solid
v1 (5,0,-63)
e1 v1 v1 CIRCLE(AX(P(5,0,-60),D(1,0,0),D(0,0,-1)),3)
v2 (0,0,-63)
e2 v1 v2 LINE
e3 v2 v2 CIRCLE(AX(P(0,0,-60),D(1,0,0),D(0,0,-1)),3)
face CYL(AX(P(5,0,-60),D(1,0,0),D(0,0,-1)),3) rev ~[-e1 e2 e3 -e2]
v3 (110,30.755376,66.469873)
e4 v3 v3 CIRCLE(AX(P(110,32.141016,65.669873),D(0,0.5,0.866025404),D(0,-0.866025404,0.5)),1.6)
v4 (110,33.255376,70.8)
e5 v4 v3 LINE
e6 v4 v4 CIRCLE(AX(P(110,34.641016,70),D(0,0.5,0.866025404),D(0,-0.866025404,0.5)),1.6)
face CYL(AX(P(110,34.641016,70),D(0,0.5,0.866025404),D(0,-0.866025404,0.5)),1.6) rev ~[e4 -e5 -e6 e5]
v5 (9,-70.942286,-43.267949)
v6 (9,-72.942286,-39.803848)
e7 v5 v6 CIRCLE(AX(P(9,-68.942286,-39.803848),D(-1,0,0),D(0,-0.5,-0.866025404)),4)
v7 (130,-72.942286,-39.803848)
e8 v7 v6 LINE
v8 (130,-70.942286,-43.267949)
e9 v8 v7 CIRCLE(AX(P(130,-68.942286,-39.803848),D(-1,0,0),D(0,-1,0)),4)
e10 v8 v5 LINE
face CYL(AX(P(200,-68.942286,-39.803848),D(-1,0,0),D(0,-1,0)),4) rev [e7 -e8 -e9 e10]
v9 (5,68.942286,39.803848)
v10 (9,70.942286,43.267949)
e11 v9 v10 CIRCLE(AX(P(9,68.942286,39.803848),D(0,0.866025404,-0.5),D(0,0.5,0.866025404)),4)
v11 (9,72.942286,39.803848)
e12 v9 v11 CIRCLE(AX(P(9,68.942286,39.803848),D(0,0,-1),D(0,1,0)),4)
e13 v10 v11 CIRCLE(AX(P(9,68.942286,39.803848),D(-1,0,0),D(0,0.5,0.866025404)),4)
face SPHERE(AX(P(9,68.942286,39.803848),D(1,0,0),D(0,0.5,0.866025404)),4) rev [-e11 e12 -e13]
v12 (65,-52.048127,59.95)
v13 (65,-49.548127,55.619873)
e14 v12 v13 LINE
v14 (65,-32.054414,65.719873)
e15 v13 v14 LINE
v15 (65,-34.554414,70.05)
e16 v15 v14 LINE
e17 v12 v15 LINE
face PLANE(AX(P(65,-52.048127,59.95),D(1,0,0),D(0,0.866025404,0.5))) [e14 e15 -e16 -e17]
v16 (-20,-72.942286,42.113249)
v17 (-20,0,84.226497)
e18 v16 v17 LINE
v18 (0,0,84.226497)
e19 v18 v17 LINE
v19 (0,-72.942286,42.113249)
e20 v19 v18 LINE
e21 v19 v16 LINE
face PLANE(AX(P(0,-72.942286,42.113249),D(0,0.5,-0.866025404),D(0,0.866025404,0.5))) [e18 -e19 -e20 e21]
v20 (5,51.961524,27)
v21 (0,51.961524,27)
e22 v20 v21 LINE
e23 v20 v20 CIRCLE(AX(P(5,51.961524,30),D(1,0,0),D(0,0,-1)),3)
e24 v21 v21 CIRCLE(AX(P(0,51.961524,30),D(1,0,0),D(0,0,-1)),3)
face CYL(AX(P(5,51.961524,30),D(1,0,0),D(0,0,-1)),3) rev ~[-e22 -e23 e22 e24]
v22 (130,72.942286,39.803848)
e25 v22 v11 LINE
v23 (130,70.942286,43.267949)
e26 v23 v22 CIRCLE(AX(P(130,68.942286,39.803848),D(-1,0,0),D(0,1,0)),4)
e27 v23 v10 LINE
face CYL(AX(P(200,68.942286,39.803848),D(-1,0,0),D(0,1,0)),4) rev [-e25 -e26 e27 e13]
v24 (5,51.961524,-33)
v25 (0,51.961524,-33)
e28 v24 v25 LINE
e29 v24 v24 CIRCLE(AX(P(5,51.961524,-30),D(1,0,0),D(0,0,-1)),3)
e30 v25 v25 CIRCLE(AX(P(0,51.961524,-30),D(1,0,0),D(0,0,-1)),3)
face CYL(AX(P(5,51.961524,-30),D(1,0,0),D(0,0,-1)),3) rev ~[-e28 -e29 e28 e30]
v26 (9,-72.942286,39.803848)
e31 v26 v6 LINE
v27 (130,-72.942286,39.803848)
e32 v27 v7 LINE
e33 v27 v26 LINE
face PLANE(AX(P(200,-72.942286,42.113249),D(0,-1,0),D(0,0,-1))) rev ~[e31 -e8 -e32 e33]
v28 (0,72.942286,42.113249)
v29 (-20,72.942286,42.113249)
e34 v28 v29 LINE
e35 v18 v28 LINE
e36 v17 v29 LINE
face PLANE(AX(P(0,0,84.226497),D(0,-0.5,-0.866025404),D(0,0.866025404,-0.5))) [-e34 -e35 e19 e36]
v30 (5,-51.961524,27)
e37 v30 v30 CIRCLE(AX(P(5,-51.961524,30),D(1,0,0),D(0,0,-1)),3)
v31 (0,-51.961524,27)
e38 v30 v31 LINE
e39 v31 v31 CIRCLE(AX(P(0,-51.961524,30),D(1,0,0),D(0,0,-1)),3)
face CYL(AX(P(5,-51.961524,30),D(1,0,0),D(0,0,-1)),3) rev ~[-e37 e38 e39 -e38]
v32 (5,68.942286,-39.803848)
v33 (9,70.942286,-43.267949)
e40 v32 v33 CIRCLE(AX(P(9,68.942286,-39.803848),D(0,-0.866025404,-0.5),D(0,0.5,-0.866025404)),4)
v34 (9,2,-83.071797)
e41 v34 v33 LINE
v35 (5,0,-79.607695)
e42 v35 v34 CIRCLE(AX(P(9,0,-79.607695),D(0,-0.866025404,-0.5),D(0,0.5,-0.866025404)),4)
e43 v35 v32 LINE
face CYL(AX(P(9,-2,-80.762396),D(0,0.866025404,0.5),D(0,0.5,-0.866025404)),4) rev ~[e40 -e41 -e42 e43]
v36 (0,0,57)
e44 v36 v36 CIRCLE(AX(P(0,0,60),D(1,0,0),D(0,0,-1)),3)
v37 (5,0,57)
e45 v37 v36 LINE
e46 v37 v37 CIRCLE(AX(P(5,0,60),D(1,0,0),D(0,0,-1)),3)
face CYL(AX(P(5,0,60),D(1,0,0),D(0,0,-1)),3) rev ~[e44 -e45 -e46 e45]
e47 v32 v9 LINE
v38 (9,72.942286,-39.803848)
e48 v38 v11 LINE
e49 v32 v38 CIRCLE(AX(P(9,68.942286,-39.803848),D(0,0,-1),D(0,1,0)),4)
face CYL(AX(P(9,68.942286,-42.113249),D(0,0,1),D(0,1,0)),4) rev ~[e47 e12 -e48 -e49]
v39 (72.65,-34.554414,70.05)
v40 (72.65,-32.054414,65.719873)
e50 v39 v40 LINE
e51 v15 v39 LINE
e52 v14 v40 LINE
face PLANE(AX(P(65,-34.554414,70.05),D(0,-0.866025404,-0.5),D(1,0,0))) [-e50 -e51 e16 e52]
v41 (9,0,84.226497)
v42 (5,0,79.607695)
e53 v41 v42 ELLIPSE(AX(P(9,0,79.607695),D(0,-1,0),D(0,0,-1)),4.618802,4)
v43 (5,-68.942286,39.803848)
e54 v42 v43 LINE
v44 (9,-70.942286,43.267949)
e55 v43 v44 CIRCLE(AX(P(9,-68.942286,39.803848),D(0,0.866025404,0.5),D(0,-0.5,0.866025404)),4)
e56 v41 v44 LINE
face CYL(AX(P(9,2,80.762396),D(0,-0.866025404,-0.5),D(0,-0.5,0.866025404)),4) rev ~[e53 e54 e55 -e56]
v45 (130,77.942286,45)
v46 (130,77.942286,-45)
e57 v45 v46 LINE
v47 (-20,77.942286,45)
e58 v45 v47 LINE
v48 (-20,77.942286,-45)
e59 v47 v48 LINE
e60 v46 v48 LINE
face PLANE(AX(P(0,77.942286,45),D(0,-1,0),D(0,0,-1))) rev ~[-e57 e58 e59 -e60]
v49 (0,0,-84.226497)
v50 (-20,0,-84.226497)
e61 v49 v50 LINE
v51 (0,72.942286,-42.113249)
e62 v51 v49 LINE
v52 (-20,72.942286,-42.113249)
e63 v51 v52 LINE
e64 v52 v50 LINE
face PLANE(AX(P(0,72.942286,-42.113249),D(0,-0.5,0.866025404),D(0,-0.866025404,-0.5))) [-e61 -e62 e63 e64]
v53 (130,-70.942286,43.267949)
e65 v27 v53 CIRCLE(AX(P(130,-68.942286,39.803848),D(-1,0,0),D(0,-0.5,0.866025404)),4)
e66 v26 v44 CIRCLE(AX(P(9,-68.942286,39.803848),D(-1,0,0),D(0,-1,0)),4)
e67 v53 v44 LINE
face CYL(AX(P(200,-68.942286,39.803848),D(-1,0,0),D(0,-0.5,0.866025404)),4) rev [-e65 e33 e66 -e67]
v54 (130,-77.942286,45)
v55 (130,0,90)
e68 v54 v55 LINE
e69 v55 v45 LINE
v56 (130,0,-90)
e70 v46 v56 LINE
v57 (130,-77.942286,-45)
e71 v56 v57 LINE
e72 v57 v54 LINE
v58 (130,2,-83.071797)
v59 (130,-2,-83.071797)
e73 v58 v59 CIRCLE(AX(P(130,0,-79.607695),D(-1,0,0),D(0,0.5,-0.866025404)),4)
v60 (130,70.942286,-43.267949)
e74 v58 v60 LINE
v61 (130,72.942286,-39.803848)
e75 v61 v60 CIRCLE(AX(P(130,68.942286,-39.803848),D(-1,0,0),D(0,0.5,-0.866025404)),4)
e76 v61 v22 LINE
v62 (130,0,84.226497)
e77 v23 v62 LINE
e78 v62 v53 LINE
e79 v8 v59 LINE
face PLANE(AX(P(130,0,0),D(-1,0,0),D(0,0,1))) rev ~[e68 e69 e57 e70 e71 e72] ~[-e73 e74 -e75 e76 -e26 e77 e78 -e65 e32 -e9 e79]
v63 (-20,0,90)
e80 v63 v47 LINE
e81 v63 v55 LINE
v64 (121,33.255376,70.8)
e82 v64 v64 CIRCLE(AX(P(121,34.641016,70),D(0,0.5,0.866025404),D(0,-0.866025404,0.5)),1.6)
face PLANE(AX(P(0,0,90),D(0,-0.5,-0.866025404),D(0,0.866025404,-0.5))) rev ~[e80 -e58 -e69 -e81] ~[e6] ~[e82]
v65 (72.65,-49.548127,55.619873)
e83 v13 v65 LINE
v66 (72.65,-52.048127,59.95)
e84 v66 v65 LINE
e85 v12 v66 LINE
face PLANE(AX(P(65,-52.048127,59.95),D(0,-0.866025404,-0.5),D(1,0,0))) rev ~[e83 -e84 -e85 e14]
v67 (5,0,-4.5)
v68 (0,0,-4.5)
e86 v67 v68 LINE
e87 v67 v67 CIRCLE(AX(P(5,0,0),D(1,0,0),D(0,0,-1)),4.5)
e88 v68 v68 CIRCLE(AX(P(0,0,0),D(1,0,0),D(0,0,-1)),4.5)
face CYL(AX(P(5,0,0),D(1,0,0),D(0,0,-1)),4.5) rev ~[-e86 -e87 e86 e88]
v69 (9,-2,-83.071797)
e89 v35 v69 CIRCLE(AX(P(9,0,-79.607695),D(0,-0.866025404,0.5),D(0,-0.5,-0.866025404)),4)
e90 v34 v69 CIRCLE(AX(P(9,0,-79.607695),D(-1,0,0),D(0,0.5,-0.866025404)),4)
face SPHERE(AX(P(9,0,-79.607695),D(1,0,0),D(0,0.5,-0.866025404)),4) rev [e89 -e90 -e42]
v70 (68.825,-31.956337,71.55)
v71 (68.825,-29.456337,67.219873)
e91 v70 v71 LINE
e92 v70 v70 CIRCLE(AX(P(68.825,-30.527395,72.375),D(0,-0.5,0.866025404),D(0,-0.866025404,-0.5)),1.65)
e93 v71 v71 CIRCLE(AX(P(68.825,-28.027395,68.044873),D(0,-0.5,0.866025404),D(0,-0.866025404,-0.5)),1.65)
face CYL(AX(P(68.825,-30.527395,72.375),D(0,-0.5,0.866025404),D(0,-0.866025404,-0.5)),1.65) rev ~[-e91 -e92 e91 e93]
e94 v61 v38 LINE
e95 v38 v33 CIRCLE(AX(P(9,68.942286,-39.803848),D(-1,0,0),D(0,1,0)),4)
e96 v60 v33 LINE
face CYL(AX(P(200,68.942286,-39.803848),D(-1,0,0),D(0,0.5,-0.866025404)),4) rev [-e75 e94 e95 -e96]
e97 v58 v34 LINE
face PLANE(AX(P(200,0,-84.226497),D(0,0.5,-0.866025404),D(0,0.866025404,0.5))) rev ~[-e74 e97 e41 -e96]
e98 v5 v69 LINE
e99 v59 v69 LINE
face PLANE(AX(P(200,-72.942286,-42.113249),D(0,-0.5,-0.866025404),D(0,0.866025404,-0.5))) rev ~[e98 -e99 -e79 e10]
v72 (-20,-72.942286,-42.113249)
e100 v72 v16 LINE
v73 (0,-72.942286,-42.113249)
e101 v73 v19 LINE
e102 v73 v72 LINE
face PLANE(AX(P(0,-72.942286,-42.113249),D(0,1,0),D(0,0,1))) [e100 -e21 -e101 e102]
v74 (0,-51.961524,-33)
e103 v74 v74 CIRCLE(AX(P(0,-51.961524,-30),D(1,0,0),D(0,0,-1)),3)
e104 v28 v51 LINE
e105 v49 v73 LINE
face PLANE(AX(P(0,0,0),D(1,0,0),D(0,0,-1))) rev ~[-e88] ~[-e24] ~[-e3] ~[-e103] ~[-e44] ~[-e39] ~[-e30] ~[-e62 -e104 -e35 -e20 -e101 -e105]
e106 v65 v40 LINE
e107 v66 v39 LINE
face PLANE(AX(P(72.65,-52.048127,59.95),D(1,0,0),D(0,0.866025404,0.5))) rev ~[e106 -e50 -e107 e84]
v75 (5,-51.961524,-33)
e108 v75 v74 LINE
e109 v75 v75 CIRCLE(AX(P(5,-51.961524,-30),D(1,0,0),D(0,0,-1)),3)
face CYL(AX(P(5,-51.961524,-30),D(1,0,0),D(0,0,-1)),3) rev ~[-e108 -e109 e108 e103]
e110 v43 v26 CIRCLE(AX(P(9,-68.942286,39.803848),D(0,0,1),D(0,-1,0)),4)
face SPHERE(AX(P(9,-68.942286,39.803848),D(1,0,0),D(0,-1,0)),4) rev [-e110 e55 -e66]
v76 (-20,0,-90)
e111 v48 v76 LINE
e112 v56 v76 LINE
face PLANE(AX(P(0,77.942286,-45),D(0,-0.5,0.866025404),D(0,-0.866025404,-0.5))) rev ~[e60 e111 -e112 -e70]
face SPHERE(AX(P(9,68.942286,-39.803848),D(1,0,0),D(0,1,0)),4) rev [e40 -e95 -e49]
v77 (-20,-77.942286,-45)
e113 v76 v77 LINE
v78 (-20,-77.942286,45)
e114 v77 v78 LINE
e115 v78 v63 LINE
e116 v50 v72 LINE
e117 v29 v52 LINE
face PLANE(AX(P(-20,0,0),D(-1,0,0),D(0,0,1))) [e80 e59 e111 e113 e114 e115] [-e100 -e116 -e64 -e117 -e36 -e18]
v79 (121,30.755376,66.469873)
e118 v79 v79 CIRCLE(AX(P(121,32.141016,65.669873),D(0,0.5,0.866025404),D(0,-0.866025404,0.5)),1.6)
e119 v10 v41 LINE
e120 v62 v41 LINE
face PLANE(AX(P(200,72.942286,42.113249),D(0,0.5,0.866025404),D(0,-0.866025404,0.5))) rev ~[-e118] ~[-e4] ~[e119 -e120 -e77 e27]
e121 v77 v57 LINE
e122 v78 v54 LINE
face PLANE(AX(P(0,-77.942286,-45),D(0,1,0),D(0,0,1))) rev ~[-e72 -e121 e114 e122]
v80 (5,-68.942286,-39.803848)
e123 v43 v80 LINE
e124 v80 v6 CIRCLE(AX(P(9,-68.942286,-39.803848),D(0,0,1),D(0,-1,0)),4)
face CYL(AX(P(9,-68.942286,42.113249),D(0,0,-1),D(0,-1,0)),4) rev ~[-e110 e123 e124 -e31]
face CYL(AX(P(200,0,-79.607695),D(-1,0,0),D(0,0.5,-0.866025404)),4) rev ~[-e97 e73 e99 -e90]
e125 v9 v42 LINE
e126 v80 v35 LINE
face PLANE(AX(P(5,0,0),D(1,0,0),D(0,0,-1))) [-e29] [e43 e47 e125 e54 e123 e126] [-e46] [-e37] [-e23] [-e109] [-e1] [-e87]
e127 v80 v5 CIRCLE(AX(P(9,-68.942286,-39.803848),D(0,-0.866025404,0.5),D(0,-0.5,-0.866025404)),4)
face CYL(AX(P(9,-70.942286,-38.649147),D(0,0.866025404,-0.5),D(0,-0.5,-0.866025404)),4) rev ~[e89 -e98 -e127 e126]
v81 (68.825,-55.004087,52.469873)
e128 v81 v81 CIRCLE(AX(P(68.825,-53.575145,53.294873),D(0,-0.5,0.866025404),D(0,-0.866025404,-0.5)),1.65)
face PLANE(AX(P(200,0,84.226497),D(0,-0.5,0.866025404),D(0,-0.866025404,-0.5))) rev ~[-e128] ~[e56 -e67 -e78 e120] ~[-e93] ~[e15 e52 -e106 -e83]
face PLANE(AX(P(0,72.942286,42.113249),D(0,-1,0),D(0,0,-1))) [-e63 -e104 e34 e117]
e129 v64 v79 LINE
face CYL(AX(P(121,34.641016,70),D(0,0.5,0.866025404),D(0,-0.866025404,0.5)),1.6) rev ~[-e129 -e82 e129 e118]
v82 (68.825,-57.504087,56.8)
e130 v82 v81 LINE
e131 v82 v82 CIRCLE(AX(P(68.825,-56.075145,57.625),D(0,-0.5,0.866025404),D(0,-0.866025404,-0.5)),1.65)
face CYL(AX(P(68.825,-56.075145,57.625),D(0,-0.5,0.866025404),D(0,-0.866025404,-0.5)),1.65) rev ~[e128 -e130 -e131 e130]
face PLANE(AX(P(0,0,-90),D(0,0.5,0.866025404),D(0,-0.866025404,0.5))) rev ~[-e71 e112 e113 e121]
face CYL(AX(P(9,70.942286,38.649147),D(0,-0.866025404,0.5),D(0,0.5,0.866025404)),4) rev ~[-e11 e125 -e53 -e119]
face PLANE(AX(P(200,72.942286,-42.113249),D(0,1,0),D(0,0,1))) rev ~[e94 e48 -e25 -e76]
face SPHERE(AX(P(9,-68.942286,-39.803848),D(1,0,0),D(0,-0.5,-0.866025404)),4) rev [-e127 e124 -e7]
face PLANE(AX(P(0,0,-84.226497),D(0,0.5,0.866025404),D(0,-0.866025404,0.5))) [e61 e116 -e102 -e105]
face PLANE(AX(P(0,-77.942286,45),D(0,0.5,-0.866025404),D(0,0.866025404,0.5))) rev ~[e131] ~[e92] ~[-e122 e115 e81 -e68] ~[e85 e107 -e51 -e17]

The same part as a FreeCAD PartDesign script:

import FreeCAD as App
import Part
import Sketcher

V = App.Vector
Q = App.Units.Quantity


def edges_at(feature, points):
    """Names of the edges that pass closest to the given points."""
    edges = feature.Shape.Edges
    near = lambda p: min(range(len(edges)), key=lambda i: edges[i].distToShape(Part.Vertex(*p))[0])
    return sorted({f"Edge{near(p) + 1}" for p in points})


def add_polygon(sketch, points):
    """Adds a closed chain of lines whose ends are joined by coincident constraints."""
    first, n = sketch.GeometryCount, len(points)
    for a, b in zip(points, points[1:] + points[:1]):
        sketch.addGeometry(Part.LineSegment(App.Vector(*a, 0), App.Vector(*b, 0)), False)
    for i in range(n):
        sketch.addConstraint(Sketcher.Constraint("Coincident", first + i, 2, first + (i + 1) % n, 1))

doc = App.newDocument("Part")
body = doc.addObject("PartDesign::Body", "Body")

# Sketch on YZ plane
sketch1 = body.newObject("Sketcher::SketchObject", "Sketch")
sketch1.AttachmentSupport = (doc.getObject("YZ_Plane"), [""])
sketch1.MapMode = "FlatFace"
add_polygon(sketch1, [(0, -90), (77.942286, -45), (77.942286, 45), (0, 90), (-77.942286, 45), (-77.942286, -45)])  # lines 0-5
sketch1.addConstraint([
    Sketcher.Constraint("Vertical", 1),
    Sketcher.Constraint("Vertical", 4),
    Sketcher.Constraint("Symmetric", 0, 2, 3, 2, -1, 1),
    Sketcher.Constraint("Symmetric", 2, 2, 5, 2, -1, 1),
    Sketcher.Constraint("PointOnObject", 2, 2, -2),
    Sketcher.Constraint("Parallel", 2, 5),
    Sketcher.Constraint("Horizontal", 1, 2, 3, 2),
    Sketcher.Constraint("DistanceY", 1, 1, 1, 2, 90.0),
    Sketcher.Constraint("Angle", 0, Q("30 deg")),
    Sketcher.Constraint("Distance", 0, 90.0),
])
pad1 = body.newObject("PartDesign::Pad", "Pad")
pad1.Profile = sketch1
pad1.Length = 200

# Sketch on YZ plane
sketch2 = body.newObject("Sketcher::SketchObject", "Sketch001")
sketch2.AttachmentSupport = (doc.getObject("YZ_Plane"), [""])
sketch2.MapMode = "FlatFace"
sketch2.AttachmentOffset = App.Placement(V(0, 0, 200), App.Rotation())
add_polygon(sketch2, [(0, -84.226497), (72.942286, -42.113249), (72.942286, 42.113249), (0, 84.226497), (-72.942286, 42.113249), (-72.942286, -42.113249)])  # lines 0-5
sketch2.addConstraint([
    Sketcher.Constraint("Vertical", 1),
    Sketcher.Constraint("Vertical", 4),
    Sketcher.Constraint("Symmetric", 0, 2, 3, 2, -1, 1),
    Sketcher.Constraint("Symmetric", 2, 2, 5, 2, -1, 1),
    Sketcher.Constraint("PointOnObject", 2, 2, -2),
    Sketcher.Constraint("Parallel", 2, 5),
    Sketcher.Constraint("Horizontal", 1, 2, 3, 2),
    Sketcher.Constraint("Angle", 0, Q("30 deg")),
    Sketcher.Constraint("DistanceY", 1, 1, 1, 2, 84.226497),
    Sketcher.Constraint("DistanceY", 1, 2, 2, 2, 42.113249),
])
pocket1 = body.newObject("PartDesign::Pocket", "Pocket")
pocket1.Profile = sketch2
pocket1.Length = 195

# Sketch on an angled plane
sketch3 = body.newObject("Sketcher::SketchObject", "Sketch002")
sketch3.Placement = App.Placement(V(0, -38.971143, 67.5), App.Rotation(V(1, 0, 0), V(0, 0.866025404, 0.5), V(0, -0.5, 0.866025404), "ZXY"))
sketch3.addGeometry(Part.Circle(V(68.825, 9.75, 0), V(0, 0, 1), 1.65), False)  # 0
sketch3.addGeometry(Part.Circle(V(68.825, -19.75, 0), V(0, 0, 1), 1.65), False)  # 1
add_polygon(sketch3, [(65, 5.1), (65, -15.1), (72.65, -15.1), (72.65, 5.1)])  # lines 2-5
sketch3.addConstraint([
    Sketcher.Constraint("Vertical", 2),
    Sketcher.Constraint("Horizontal", 3),
    Sketcher.Constraint("Vertical", 4),
    Sketcher.Constraint("Horizontal", 5),
    Sketcher.Constraint("Equal", 0, 1),
    Sketcher.Constraint("Vertical", 0, 3, 1, 3),
    Sketcher.Constraint("Diameter", 0, 3.3),
    Sketcher.Constraint("DistanceY", 2, 2, 2, 1, 20.2),
    Sketcher.Constraint("DistanceX", -1, 1, 2, 2, 65.0),
    Sketcher.Constraint("DistanceX", 3, 1, 3, 2, 7.65),
    Sketcher.Constraint("DistanceY", 2, 2, -1, 1, 15.1),
    Sketcher.Constraint("DistanceY", 1, 3, 0, 3, 29.5),
    Sketcher.Constraint("DistanceY", -1, 1, 0, 3, 9.75),
    Sketcher.Constraint("DistanceX", -1, 1, 0, 3, 68.825),
])
pocket2 = body.newObject("PartDesign::Pocket", "Pocket001")
pocket2.Profile = sketch3
pocket2.Length = 70

# Sketch on YZ plane
sketch4 = body.newObject("Sketcher::SketchObject", "Sketch003")
sketch4.AttachmentSupport = (doc.getObject("YZ_Plane"), [""])
sketch4.MapMode = "FlatFace"
sketch4.AttachmentOffset = App.Placement(V(0, 0, 5), App.Rotation())
sketch4.addGeometry([
    Part.Circle(V(0, 0, 0), V(0, 0, 1), 4.5),  # 0
    Part.Circle(V(0, -60, 0), V(0, 0, 1), 3),  # 1
    Part.Circle(V(51.961524, -30, 0), V(0, 0, 1), 3),  # 2
    Part.Circle(V(51.961524, 30, 0), V(0, 0, 1), 3),  # 3
    Part.Circle(V(0, 60, 0), V(0, 0, 1), 3),  # 4
    Part.Circle(V(-51.961524, 30, 0), V(0, 0, 1), 3),  # 5
    Part.Circle(V(-51.961524, -30, 0), V(0, 0, 1), 3),  # 6
], False)
sketch4.addConstraint([
    Sketcher.Constraint("Coincident", 0, 3, -1, 1),
    Sketcher.Constraint("Equal", 1, 2),
    Sketcher.Constraint("Equal", 2, 3),
    Sketcher.Constraint("Equal", 3, 4),
    Sketcher.Constraint("Equal", 4, 5),
    Sketcher.Constraint("Equal", 5, 6),
    Sketcher.Constraint("Symmetric", 1, 3, 4, 3, -1, 1),
    Sketcher.Constraint("Symmetric", 2, 3, 5, 3, -1, 1),
    Sketcher.Constraint("Symmetric", 3, 3, 6, 3, -1, 1),
    Sketcher.Constraint("Symmetric", 3, 3, 5, 3, -2),
    Sketcher.Constraint("PointOnObject", 1, 3, -2),
    Sketcher.Constraint("Diameter", 0, 9.0),
    Sketcher.Constraint("Diameter", 1, 6.0),
    Sketcher.Constraint("DistanceY", 1, 3, -1, 1, 60.0),
    Sketcher.Constraint("DistanceY", 2, 3, -1, 1, 30.0),
    Sketcher.Constraint("DistanceX", 5, 3, 3, 3, 103.923048),
])
pocket3 = body.newObject("PartDesign::Pocket", "Pocket002")
pocket3.Profile = sketch4
pocket3.Length = 70
doc.recompute()

fillet = body.newObject("PartDesign::Fillet", "Fillet")
fillet.Base = (pocket3, edges_at(pocket3, [
    (5, -36.471, -63.17),
    (102.5, 0, -84.226),
    (5, -72.942, 0),
    (102.5, -72.942, -42.113),
    (5, -36.471, 63.17),
    (102.5, -72.942, 42.113),
    (5, 36.471, 63.17),
    (5, 72.942, 0),
    (102.5, 72.942, 42.113),
    (5, 36.471, -63.17),
    (102.5, 72.942, -42.113),
]))
fillet.Radius = 4

# Sketch on YZ plane
sketch5 = body.newObject("Sketcher::SketchObject", "Sketch004")
sketch5.AttachmentSupport = (doc.getObject("YZ_Plane"), [""])
sketch5.MapMode = "FlatFace"
sketch5.AttachmentOffset = App.Placement(V(0, 0, 200), App.Rotation())
add_polygon(sketch5, [(0, -90), (77.942286, -45), (77.942286, 45), (0, 90), (-77.942286, 45), (-77.942286, -45)])  # lines 0-5
sketch5.addConstraint([
    Sketcher.Constraint("Vertical", 1),
    Sketcher.Constraint("Vertical", 4),
    Sketcher.Constraint("Symmetric", 0, 2, 3, 2, -1, 1),
    Sketcher.Constraint("Symmetric", 2, 2, 5, 2, -1, 1),
    Sketcher.Constraint("PointOnObject", 2, 2, -2),
    Sketcher.Constraint("Parallel", 2, 5),
    Sketcher.Constraint("Horizontal", 1, 2, 3, 2),
    Sketcher.Constraint("DistanceY", 1, 1, 1, 2, 90.0),
    Sketcher.Constraint("Angle", 0, Q("30 deg")),
    Sketcher.Constraint("Distance", 0, 90.0),
])
pocket4 = body.newObject("PartDesign::Pocket", "Pocket003")
pocket4.Profile = sketch5
pocket4.Length = 70

# Sketch on an angled plane
sketch6 = body.newObject("Sketcher::SketchObject", "Sketch005")
sketch6.Placement = App.Placement(V(0, 38.971143, 67.5), App.Rotation(V(1, 0, 0), V(0, 0.866025404, -0.5), V(0, 0.5, 0.866025404), "ZXY"))
sketch6.addGeometry([
    Part.Circle(V(110, -5, 0), V(0, 0, 1), 1.6),
    Part.Circle(V(121, -5, 0), V(0, 0, 1), 1.6),
], False)
sketch6.addConstraint([
    Sketcher.Constraint("Equal", 0, 1),
    Sketcher.Constraint("Horizontal", 0, 3, 1, 3),
    Sketcher.Constraint("Diameter", 0, 3.2),
    Sketcher.Constraint("DistanceX", -1, 1, 0, 3, 110.0),
    Sketcher.Constraint("DistanceY", 0, 3, -1, 1, 5.0),
    Sketcher.Constraint("DistanceX", -1, 1, 1, 3, 121.0),
])
pocket5 = body.newObject("PartDesign::Pocket", "Pocket004")
pocket5.Profile = sketch6
pocket5.Length = 6

# Sketch on YZ plane
sketch7 = body.newObject("Sketcher::SketchObject", "Sketch006")
sketch7.AttachmentSupport = (doc.getObject("YZ_Plane"), [""])
sketch7.MapMode = "FlatFace"
add_polygon(sketch7, [(0, 90), (77.942286, 45), (77.942286, -45), (0, -90), (-77.942286, -45), (-77.942286, 45)])  # lines 0-5
add_polygon(sketch7, [(72.942286, 42.113249), (0, 84.226497), (-72.942286, 42.113249), (-72.942286, -42.113249), (0, -84.226497), (72.942286, -42.113249)])  # lines 6-11
sketch7.addConstraint([
    Sketcher.Constraint("Vertical", 1),
    Sketcher.Constraint("Vertical", 4),
    Sketcher.Constraint("Vertical", 8),
    Sketcher.Constraint("Vertical", 11),
    Sketcher.Constraint("Symmetric", 0, 2, 3, 2, -1, 1),
    Sketcher.Constraint("Symmetric", 2, 2, 5, 2, -1, 1),
    Sketcher.Constraint("Symmetric", 6, 2, 9, 2, -1, 1),
    Sketcher.Constraint("Symmetric", 7, 2, 10, 2, -1, 1),
    Sketcher.Constraint("PointOnObject", 2, 2, -2),
    Sketcher.Constraint("PointOnObject", 6, 2, -2),
    Sketcher.Constraint("Parallel", 2, 5),
    Sketcher.Constraint("Parallel", 3, 6),
    Sketcher.Constraint("Parallel", 5, 7),
    Sketcher.Constraint("Parallel", 6, 9),
    Sketcher.Constraint("Horizontal", 1, 2, 3, 2),
    Sketcher.Constraint("DistanceY", 1, 2, 1, 1, 90.0),
    Sketcher.Constraint("Angle", 0, Q("-30 deg")),
    Sketcher.Constraint("Distance", 0, 90.0),
    Sketcher.Constraint("DistanceX", 4, 2, 7, 2, 5.0),
    Sketcher.Constraint("DistanceY", 8, 2, 8, 1, 84.226497),
])
pad2 = body.newObject("PartDesign::Pad", "Pad001")
pad2.Profile = sketch7
pad2.Length = 20
pad2.Reversed = True

doc.recompute()
